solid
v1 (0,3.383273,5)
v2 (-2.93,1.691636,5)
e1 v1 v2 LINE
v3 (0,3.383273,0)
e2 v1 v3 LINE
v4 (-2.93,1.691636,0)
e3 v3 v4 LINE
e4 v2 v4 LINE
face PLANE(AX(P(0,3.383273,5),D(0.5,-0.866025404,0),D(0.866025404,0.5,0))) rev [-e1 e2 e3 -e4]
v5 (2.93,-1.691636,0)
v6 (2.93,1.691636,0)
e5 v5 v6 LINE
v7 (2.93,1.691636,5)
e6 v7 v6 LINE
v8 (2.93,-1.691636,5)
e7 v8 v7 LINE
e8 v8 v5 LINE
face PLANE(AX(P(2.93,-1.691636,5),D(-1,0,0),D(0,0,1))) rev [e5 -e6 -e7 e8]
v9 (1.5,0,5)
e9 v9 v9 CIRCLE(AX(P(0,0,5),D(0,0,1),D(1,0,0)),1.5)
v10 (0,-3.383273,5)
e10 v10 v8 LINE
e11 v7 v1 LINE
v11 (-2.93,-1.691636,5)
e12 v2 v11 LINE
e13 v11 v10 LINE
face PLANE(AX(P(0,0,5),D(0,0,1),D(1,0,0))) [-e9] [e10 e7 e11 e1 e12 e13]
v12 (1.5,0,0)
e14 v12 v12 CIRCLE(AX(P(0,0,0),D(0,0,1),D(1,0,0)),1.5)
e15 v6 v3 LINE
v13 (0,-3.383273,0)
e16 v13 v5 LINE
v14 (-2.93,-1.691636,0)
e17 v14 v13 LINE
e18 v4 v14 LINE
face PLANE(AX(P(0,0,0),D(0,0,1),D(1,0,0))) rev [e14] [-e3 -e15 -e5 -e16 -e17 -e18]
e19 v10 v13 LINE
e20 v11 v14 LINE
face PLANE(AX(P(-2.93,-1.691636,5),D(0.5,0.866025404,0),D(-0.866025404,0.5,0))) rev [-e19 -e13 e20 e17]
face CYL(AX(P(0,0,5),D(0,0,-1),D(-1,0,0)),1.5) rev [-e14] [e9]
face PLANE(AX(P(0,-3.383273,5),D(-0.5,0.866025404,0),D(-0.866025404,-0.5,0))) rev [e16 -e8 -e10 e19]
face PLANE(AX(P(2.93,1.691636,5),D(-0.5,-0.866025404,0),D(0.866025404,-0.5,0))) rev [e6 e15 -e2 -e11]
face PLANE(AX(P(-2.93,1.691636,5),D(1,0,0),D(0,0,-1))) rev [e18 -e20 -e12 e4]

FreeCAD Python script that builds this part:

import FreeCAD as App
import Part
import Sketcher

V = App.Vector
Q = App.Units.Quantity


def add_polygon(sketch, points):
    """Adds a closed chain of lines whose ends are joined by coincident constraints."""
    first, n = sketch.GeometryCount, len(points)
    for a, b in zip(points, points[1:] + points[:1]):
        sketch.addGeometry(Part.LineSegment(App.Vector(*a, 0), App.Vector(*b, 0)), False)
    for i in range(n):
        sketch.addConstraint(Sketcher.Constraint("Coincident", first + i, 2, first + (i + 1) % n, 1))

doc = App.newDocument("Part")
body = doc.addObject("PartDesign::Body", "Body")

sketch1 = doc.addObject("Sketcher::SketchObject", "Sketch")
body.addObject(sketch1)
sketch1.AttachmentSupport = (doc.XY_Plane, [""])
sketch1.MapMode = "FlatFace"
add_polygon(sketch1, [(0, -3.4), (2.9, -1.7), (2.9, 1.7), (0, 3.4), (-2.9, 1.7), (-2.9, -1.7)])
sketch1.addGeometry(Part.Circle(V(0, 0, 0), V(0, 0, 1), 1.5), False)
sketch1.addConstraint(Sketcher.Constraint("Vertical", 1))
sketch1.addConstraint(Sketcher.Constraint("Vertical", 4))
sketch1.addConstraint(Sketcher.Constraint("Coincident", 6, 3, -1, 1))
sketch1.addConstraint(Sketcher.Constraint("Symmetric", 0, 2, 3, 2, -1, 1))
sketch1.addConstraint(Sketcher.Constraint("Symmetric", 2, 2, 5, 2, -1, 1))
sketch1.addConstraint(Sketcher.Constraint("PointOnObject", 2, 2, -2))
sketch1.addConstraint(Sketcher.Constraint("Parallel", 2, 5))
sketch1.addConstraint(Sketcher.Constraint("Horizontal", 1, 2, 3, 2))
sketch1.addConstraint(Sketcher.Constraint("Diameter", 6, Q("3 mm")))
sketch1.addConstraint(Sketcher.Constraint("Angle", 0, Q("30 deg")))
sketch1.addConstraint(Sketcher.Constraint("DistanceX", -1, 1, 0, 2, Q("2.93 mm")))
sketch1.addConstraint(Sketcher.Constraint("DistanceY", 1, 1, 1, 2, Q("3.383273 mm")))
pad1 = doc.addObject("PartDesign::Pad", "Pad")
body.addObject(pad1)
pad1.Profile = sketch1
pad1.Length = 5

doc.recompute()
